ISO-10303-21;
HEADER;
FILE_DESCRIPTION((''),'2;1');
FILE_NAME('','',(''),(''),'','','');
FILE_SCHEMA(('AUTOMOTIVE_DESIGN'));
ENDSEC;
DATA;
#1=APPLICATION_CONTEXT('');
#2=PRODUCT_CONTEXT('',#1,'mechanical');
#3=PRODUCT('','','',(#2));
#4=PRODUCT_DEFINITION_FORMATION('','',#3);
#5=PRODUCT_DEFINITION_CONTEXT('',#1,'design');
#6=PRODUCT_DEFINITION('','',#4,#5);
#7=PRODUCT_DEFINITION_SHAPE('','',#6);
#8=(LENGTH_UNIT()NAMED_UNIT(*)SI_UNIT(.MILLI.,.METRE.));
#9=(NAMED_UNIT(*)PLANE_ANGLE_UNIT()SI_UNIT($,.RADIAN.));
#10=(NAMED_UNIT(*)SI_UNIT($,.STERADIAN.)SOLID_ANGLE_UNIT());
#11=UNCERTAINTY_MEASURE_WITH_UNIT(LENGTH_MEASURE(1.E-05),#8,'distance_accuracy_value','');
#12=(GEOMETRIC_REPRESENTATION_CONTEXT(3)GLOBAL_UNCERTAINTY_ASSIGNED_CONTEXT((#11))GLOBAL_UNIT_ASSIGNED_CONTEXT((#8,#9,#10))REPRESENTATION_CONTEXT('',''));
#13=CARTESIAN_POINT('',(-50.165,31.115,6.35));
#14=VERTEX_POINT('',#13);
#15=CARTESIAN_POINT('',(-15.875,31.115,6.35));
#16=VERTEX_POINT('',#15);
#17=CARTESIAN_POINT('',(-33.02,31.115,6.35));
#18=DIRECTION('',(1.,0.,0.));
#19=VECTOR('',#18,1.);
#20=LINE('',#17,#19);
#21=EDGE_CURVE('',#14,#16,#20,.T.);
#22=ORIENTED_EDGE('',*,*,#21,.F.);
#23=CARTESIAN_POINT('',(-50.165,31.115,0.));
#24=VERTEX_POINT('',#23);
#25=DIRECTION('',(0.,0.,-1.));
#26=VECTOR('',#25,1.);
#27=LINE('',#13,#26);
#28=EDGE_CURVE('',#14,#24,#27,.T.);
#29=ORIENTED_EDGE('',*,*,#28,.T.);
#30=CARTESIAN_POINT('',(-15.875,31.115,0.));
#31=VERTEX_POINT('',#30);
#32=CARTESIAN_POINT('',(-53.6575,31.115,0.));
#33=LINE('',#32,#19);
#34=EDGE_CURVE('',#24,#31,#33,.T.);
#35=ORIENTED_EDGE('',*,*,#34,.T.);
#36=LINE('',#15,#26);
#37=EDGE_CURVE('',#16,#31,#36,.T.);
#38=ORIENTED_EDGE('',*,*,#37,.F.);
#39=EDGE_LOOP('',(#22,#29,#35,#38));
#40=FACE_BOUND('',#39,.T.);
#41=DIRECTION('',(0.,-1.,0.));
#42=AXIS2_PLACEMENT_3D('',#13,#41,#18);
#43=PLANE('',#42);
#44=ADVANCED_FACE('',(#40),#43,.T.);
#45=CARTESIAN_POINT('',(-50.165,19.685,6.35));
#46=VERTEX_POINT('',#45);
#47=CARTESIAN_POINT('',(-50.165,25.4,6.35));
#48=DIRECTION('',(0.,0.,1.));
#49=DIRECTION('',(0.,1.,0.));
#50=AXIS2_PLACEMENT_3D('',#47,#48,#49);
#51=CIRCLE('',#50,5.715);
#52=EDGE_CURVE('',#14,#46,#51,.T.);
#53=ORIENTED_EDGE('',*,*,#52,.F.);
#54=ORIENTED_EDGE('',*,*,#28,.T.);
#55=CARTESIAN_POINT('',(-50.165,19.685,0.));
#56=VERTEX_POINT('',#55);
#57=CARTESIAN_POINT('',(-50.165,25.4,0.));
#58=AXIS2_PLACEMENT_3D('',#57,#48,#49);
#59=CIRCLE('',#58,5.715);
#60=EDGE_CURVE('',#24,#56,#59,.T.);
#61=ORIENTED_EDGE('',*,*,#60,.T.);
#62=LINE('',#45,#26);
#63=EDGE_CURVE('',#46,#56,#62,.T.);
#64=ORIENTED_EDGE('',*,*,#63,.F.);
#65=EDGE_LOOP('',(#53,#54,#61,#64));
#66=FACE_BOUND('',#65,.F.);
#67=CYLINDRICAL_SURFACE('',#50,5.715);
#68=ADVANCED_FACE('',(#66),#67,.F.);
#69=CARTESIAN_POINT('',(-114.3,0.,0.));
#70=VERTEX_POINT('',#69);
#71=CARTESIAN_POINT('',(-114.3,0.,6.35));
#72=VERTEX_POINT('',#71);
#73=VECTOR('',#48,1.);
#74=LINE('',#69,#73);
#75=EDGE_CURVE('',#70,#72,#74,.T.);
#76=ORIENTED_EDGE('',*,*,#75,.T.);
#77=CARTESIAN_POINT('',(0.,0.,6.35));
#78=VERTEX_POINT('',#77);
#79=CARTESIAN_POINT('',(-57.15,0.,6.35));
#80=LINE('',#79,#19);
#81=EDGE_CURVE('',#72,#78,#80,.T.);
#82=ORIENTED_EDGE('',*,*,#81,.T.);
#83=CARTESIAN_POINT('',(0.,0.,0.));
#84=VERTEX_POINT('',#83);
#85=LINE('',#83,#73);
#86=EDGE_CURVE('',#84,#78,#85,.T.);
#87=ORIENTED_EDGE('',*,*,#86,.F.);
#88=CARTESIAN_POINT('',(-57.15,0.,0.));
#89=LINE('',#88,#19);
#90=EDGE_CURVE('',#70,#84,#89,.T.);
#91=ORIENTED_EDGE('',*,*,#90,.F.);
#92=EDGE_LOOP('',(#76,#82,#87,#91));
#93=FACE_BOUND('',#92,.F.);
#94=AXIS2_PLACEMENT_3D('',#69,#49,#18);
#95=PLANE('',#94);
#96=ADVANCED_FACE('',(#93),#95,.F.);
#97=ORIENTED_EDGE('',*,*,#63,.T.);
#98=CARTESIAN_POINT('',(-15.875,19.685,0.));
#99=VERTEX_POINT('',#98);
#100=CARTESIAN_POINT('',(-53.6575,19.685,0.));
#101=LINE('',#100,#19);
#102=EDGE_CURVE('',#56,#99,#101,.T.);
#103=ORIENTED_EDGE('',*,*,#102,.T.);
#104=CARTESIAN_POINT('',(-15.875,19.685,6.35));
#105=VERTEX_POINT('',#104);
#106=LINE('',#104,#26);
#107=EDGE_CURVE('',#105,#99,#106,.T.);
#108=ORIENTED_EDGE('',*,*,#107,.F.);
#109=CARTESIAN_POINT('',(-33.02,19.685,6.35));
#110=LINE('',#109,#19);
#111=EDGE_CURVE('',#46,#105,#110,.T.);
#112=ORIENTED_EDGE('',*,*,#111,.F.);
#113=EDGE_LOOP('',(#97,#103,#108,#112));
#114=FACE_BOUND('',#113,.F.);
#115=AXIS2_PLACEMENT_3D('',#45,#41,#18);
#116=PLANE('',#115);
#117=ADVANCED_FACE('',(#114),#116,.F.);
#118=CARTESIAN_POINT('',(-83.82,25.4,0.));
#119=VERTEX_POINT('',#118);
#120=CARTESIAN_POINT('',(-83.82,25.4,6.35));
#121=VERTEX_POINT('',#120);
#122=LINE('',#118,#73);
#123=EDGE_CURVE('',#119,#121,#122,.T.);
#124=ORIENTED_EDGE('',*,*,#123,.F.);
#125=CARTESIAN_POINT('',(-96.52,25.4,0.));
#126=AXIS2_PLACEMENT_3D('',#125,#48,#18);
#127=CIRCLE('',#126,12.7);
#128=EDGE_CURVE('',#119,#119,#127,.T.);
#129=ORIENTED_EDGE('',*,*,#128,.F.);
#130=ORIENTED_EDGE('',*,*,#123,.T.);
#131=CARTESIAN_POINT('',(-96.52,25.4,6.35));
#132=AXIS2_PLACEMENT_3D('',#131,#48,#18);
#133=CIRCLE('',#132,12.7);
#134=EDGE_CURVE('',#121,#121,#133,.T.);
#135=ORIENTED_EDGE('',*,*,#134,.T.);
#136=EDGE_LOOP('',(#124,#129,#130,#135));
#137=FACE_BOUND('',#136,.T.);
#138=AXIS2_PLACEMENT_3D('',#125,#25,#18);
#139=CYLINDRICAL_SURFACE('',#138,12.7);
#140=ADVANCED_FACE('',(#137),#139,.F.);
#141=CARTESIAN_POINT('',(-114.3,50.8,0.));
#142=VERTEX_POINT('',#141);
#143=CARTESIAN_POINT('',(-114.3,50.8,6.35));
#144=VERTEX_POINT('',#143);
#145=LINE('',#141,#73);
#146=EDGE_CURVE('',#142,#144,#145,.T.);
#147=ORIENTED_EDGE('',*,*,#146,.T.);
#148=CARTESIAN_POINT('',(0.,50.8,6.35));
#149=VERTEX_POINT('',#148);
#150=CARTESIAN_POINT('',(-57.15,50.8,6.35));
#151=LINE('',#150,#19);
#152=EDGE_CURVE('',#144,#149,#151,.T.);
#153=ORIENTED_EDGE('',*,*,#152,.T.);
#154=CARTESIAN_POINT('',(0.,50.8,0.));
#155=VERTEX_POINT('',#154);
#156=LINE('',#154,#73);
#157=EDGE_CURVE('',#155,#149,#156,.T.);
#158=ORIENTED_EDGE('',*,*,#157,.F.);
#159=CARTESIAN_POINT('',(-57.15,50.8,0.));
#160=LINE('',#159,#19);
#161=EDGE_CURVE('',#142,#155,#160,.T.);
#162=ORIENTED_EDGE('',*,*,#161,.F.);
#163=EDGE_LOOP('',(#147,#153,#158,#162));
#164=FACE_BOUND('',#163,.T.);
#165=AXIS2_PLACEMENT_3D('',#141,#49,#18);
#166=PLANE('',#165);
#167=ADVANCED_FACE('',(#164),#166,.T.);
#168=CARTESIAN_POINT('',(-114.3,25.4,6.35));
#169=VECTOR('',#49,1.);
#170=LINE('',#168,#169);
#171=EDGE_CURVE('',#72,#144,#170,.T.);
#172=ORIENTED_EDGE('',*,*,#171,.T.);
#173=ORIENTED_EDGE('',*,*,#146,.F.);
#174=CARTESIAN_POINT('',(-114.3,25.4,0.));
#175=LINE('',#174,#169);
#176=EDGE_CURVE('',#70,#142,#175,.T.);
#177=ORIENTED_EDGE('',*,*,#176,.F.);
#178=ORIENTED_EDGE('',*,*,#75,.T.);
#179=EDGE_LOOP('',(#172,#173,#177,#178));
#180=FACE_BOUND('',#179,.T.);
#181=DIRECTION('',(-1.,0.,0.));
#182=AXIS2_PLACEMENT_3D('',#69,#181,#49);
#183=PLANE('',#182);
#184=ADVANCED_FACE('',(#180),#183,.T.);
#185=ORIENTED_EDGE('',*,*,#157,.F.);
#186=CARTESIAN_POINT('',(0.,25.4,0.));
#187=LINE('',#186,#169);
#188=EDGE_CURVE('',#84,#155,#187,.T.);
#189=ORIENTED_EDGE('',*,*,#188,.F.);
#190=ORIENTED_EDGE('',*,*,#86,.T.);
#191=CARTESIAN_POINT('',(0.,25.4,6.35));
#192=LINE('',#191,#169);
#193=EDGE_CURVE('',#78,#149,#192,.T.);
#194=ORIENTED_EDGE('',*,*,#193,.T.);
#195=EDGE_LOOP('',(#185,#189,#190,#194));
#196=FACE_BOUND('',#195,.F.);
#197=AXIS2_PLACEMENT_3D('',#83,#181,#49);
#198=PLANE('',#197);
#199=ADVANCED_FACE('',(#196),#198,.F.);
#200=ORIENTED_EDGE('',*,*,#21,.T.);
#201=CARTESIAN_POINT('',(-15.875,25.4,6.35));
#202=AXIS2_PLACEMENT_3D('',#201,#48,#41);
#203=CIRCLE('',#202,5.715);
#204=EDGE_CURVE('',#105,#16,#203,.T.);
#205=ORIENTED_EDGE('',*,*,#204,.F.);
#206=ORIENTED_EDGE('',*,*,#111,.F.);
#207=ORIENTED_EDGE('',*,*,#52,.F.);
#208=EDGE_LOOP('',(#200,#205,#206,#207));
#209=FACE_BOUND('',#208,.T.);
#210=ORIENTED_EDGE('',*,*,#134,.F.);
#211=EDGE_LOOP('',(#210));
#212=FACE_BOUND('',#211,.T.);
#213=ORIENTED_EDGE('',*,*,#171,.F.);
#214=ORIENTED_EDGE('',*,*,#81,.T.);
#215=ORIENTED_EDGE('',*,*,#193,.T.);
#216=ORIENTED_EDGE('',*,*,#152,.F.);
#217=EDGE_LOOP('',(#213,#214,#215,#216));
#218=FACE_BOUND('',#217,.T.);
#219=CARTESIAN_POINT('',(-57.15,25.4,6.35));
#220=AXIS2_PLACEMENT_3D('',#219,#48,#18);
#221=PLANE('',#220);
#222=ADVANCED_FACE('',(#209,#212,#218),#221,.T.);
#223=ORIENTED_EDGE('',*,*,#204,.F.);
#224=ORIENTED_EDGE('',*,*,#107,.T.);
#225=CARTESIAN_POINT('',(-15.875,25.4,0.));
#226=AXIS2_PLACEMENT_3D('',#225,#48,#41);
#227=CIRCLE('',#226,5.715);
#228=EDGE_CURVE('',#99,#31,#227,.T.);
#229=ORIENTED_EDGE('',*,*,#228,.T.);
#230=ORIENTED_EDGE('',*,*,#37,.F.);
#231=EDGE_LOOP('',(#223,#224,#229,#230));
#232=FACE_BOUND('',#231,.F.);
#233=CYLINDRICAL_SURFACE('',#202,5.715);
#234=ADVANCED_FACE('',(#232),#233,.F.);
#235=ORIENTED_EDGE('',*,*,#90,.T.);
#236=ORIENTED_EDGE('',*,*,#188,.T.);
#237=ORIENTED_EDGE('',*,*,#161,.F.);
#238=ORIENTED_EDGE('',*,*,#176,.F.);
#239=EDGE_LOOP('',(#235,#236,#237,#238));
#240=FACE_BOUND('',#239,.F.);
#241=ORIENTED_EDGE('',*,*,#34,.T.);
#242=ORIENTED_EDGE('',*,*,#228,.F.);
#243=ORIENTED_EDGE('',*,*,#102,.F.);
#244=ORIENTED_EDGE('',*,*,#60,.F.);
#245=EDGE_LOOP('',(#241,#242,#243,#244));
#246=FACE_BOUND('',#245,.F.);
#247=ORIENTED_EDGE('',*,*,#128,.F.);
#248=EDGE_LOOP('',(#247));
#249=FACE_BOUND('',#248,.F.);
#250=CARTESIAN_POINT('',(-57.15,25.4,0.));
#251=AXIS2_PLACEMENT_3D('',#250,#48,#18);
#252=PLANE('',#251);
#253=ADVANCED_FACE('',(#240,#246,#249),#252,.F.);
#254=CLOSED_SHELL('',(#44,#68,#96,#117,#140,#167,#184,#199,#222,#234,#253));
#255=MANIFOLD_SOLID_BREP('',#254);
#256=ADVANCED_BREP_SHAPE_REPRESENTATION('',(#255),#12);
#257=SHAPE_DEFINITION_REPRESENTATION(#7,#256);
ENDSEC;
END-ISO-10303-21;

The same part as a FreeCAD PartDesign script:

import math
import FreeCAD as App
import Part
import Sketcher
Q = App.Units.Quantity


def add_polygon(sketch, points):
    """Adds a closed chain of lines whose ends are joined by coincident constraints."""
    first, n = sketch.GeometryCount, len(points)
    for a, b in zip(points, points[1:] + points[:1]):
        sketch.addGeometry(Part.LineSegment(App.Vector(*a, 0), App.Vector(*b, 0)), False)
    for i in range(n):
        sketch.addConstraint(Sketcher.Constraint("Coincident", first + i, 2, first + (i + 1) % n, 1))

doc = App.newDocument("Part")
params = doc.addObject("Spreadsheet::Sheet", "Params")
for row, (alias, value) in enumerate([
    ("sketch1_diameter", "1 in"),
    ("sketch1_height", "2 in"),
    ("sketch1_width", "4.5 in"),
    ("pad1_length", "0.25 in"),
    ("sketch2_radius", "0.225 in"),
    ("sketch2_width", "1.35 in"),
    ("pocket1_length", "1 in"),
], start=1):
    params.set(f"A{row}", alias)
    params.set(f"B{row}", "=" + value)
    params.setAlias(f"B{row}", alias)

body = doc.addObject("PartDesign::Body", "Body")

# Sketch on XY plane
sketch1 = body.newObject("Sketcher::SketchObject", "Sketch")
sketch1.AttachmentSupport = (doc.getObject("XY_Plane"), [""])
sketch1.MapMode = "FlatFace"
add_polygon(sketch1, [(-114, 51), (-114, 0), (0, 0), (0, 51)])  # lines 0-3
sketch1.addGeometry(Part.Circle(App.Vector(-97, 25, 0), App.Vector(0, 0, 1), 13), False)  # 4
sketch1.addConstraint([
    Sketcher.Constraint("Vertical", 0),
    Sketcher.Constraint("Horizontal", 1),
    Sketcher.Constraint("Vertical", 2),
    Sketcher.Constraint("Horizontal", 3),
    Sketcher.Constraint("Coincident", 1, 2, -1, 1),
    Sketcher.Constraint("Diameter", 4, Q("1 in")),
    Sketcher.Constraint("DistanceY", 0, 2, 0, 1, Q("2 in")),
    Sketcher.Constraint("DistanceX", 1, 1, 1, 2, Q("4.5 in")),
    Sketcher.Constraint("DistanceY", -1, 1, 4, 3, Q("1 in")),
    Sketcher.Constraint("DistanceX", 4, 3, -1, 1, Q("3.8 in")),
])
sketch1.setExpression("Constraints[9]", "Params.sketch1_diameter")
sketch1.setExpression("Constraints[10]", "Params.sketch1_height")
sketch1.setExpression("Constraints[11]", "Params.sketch1_width")
pad1 = body.newObject("PartDesign::Pad", "Pad")
pad1.Profile = sketch1
pad1.setExpression("Length", "Params.pad1_length")

# Sketch on XY plane
sketch2 = body.newObject("Sketcher::SketchObject", "Sketch001")
sketch2.AttachmentSupport = (doc.getObject("XY_Plane"), [""])
sketch2.MapMode = "FlatFace"
sketch2.AttachmentOffset = App.Placement(App.Vector(0, 0, 0.25 * 25.4), App.Rotation())
sketch2.addGeometry([
    Part.LineSegment(App.Vector(-50, 20, 0), App.Vector(-16, 20, 0)),
    Part.ArcOfCircle(Part.Circle(App.Vector(-16, 25, 0), App.Vector(0, 0, 1), 6), math.radians(-90), math.radians(90)),
    Part.LineSegment(App.Vector(-16, 31, 0), App.Vector(-50, 31, 0)),
    Part.ArcOfCircle(Part.Circle(App.Vector(-50, 25, 0), App.Vector(0, 0, 1), 6), math.radians(90), math.radians(270)),
], False)
sketch2.addConstraint([
    Sketcher.Constraint("Tangent", 0, 2, 1, 1),
    Sketcher.Constraint("Tangent", 1, 2, 2, 1),
    Sketcher.Constraint("Tangent", 2, 2, 3, 1),
    Sketcher.Constraint("Tangent", 3, 2, 0, 1),
    Sketcher.Constraint("Horizontal", 0),
    Sketcher.Constraint("Horizontal", 2),
    Sketcher.Constraint("DistanceY", -1, 1, 1, 3, Q("1 in")),
    Sketcher.Constraint("Radius", 1, Q("0.225 in")),
    Sketcher.Constraint("DistanceX", 0, 1, 0, 2, Q("1.35 in")),
    Sketcher.Constraint("DistanceX", 1, 3, -1, 1, Q("0.625 in")),
])
sketch2.setExpression("Constraints[7]", "Params.sketch2_radius")
sketch2.setExpression("Constraints[8]", "Params.sketch2_width")
pocket1 = body.newObject("PartDesign::Pocket", "Pocket")
pocket1.Profile = sketch2
pocket1.setExpression("Length", "Params.pocket1_length")

doc.recompute()
